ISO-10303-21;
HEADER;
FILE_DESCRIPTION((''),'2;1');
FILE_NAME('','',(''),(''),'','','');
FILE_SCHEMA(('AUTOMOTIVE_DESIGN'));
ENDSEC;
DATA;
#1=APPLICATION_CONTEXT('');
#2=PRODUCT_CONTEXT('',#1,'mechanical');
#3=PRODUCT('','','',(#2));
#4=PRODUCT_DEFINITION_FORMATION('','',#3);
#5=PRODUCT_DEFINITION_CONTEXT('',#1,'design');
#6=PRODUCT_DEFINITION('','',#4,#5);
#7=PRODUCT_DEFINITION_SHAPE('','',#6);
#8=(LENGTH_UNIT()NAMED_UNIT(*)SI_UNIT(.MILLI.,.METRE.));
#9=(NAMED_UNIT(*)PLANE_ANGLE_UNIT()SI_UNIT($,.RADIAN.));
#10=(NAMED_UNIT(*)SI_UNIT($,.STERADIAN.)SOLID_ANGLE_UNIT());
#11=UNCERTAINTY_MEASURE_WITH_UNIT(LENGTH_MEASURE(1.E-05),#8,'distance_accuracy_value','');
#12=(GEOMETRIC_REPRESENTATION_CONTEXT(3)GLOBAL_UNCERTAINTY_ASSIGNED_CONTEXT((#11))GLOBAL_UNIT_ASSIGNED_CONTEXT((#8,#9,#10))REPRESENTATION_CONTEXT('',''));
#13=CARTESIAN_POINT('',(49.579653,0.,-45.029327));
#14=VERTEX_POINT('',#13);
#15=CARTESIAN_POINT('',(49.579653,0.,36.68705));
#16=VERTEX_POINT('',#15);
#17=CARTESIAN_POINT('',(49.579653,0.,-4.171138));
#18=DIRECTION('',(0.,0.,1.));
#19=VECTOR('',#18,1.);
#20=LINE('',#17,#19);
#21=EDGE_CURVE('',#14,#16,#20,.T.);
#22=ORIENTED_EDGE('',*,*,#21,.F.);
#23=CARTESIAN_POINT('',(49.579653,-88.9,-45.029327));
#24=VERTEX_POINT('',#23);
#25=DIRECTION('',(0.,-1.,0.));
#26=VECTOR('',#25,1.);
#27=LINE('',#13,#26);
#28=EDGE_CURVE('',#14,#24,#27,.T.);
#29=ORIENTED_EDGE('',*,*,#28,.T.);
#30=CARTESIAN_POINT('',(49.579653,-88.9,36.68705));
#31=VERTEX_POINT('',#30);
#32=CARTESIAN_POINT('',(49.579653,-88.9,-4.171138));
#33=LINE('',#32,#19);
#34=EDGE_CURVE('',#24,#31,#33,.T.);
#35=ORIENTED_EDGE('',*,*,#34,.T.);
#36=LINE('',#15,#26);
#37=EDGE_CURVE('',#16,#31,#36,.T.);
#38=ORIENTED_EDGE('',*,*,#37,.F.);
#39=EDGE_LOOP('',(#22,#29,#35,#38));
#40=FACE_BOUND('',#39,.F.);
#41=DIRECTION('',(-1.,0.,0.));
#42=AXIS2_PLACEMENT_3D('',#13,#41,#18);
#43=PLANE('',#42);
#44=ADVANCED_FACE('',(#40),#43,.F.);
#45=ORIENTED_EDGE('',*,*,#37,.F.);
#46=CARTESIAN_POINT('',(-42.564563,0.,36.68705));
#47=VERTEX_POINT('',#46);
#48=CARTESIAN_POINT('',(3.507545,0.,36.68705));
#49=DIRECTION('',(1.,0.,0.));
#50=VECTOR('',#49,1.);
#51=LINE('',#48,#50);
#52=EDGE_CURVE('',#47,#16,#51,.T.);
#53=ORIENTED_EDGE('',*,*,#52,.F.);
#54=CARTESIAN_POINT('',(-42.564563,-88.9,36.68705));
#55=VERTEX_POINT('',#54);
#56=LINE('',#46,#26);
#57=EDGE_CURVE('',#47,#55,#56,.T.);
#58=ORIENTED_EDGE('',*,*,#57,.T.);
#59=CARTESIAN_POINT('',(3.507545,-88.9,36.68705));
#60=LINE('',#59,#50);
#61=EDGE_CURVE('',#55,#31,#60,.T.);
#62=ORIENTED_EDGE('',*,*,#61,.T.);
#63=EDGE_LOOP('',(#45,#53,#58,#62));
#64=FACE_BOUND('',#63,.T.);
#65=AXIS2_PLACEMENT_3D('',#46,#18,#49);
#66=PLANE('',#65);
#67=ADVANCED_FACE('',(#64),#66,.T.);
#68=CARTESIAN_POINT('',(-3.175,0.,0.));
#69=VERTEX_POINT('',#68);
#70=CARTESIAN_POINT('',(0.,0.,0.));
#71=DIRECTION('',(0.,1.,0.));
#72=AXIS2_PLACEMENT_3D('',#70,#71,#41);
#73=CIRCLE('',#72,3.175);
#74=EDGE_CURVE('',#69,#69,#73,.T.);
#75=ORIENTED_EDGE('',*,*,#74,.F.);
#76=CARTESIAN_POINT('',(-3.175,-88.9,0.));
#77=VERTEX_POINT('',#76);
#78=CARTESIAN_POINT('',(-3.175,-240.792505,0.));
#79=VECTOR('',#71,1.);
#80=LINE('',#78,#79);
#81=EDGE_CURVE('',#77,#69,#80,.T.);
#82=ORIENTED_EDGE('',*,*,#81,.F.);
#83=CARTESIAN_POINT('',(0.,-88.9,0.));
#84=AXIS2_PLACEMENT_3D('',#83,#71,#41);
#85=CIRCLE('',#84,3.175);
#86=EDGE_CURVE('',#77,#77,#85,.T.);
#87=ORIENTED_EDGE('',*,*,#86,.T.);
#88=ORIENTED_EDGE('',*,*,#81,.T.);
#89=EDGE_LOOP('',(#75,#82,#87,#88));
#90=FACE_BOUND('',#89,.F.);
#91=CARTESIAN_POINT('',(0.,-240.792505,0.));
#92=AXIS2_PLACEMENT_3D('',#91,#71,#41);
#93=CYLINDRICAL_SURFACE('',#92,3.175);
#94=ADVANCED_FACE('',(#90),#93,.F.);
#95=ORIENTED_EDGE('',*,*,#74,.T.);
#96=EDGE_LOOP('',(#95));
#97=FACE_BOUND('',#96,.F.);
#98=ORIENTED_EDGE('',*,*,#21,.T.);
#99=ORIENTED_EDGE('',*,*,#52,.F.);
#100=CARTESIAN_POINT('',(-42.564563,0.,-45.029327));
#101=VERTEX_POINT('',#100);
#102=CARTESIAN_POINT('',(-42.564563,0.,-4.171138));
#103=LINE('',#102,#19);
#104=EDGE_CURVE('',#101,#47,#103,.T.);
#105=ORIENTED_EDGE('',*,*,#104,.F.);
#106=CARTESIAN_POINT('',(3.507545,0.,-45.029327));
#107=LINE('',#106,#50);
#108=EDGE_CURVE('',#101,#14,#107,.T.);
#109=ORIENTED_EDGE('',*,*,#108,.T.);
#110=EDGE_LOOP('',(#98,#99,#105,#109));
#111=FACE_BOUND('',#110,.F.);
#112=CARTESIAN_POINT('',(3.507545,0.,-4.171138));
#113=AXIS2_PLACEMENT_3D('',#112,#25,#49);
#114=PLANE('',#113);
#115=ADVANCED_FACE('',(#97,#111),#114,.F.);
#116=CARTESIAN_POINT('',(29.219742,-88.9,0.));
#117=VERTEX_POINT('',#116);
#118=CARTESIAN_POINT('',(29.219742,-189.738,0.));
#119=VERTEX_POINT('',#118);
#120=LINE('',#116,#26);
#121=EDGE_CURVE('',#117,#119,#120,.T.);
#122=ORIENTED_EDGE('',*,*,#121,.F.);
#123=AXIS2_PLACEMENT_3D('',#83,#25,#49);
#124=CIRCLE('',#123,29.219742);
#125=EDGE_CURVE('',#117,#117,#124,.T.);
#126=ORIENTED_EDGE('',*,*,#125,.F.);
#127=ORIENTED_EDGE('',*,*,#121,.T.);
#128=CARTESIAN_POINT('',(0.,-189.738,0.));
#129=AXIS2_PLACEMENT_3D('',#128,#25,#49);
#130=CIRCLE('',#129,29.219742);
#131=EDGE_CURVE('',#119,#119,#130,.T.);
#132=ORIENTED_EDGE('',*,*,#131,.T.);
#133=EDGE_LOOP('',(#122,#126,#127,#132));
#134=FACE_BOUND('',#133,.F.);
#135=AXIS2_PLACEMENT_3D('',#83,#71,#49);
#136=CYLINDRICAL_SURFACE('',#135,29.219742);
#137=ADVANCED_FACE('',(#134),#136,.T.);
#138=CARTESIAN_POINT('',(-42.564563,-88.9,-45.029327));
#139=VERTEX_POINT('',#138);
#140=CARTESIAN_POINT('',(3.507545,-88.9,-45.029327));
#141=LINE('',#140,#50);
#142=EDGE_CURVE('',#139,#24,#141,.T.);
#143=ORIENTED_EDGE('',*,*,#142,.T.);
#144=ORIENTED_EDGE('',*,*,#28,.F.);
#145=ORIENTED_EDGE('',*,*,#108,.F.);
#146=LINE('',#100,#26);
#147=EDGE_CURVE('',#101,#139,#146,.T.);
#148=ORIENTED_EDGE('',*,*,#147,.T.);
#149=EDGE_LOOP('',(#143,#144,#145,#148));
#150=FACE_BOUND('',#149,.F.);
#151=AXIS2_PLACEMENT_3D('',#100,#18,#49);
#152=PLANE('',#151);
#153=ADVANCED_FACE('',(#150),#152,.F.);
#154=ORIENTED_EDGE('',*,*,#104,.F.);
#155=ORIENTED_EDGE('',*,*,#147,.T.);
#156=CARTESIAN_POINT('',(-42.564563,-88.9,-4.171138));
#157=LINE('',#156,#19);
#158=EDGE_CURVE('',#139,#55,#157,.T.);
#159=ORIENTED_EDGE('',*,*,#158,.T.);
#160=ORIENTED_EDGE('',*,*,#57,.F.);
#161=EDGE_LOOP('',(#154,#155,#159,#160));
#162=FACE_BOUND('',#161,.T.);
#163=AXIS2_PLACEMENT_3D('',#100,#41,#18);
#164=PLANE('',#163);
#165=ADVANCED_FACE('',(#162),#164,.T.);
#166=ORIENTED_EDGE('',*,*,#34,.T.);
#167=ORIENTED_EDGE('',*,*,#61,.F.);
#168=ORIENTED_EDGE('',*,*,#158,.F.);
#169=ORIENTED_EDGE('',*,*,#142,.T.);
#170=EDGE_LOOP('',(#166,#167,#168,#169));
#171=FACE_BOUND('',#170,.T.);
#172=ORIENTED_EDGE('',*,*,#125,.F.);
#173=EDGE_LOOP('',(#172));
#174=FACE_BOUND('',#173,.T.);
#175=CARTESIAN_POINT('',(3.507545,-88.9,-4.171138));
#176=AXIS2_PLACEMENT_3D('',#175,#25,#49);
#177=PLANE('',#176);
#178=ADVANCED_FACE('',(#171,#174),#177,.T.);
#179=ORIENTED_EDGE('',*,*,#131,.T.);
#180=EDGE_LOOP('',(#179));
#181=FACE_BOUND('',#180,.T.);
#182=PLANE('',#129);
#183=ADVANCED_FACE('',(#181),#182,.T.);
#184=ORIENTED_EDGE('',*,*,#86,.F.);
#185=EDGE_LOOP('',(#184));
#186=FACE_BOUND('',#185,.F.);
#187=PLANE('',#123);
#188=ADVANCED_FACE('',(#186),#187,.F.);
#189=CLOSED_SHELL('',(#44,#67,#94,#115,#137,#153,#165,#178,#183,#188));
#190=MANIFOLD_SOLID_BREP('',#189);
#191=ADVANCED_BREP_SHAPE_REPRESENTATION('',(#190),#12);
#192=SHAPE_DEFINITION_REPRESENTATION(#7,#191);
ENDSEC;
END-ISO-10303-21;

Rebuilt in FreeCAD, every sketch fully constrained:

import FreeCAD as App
import Part
import Sketcher
Q = App.Units.Quantity


def add_polygon(sketch, points):
    """Adds a closed chain of lines whose ends are joined by coincident constraints."""
    first, n = sketch.GeometryCount, len(points)
    for a, b in zip(points, points[1:] + points[:1]):
        sketch.addGeometry(Part.LineSegment(App.Vector(*a, 0), App.Vector(*b, 0)), False)
    for i in range(n):
        sketch.addConstraint(Sketcher.Constraint("Coincident", first + i, 2, first + (i + 1) % n, 1))

doc = App.newDocument("Part")
body = doc.addObject("PartDesign::Body", "Body")

sketch1 = body.newObject("Sketcher::SketchObject", "Sketch")
sketch1.AttachmentSupport = (doc.getObject("XZ_Plane"), [""])
sketch1.MapMode = "FlatFace"
add_polygon(sketch1, [(-43, 37), (-43, -45), (50, -45), (50, 37)])
sketch1.addConstraint([
    Sketcher.Constraint("Vertical", 0),
    Sketcher.Constraint("Horizontal", 1),
    Sketcher.Constraint("Vertical", 2),
    Sketcher.Constraint("Horizontal", 3),
    Sketcher.Constraint("DistanceX", 1, 1, 1, 2, 92.144217),
    Sketcher.Constraint("DistanceY", 0, 2, 0, 1, 81.716377),
    Sketcher.Constraint("DistanceY", -1, 1, 2, 2, 36.68705),
    Sketcher.Constraint("DistanceX", 0, 2, -1, 1, 42.564563),
])
pad1 = body.newObject("PartDesign::Pad", "Pad")
pad1.Profile = sketch1
pad1.Length = Q("3.5 in")

sketch2 = body.newObject("Sketcher::SketchObject", "Sketch001")
sketch2.AttachmentSupport = (doc.getObject("XZ_Plane"), [""])
sketch2.MapMode = "FlatFace"
sketch2.AttachmentOffset = App.Placement(App.Vector(0, 0, 3.5 * 25.4), App.Rotation())
sketch2.addGeometry(Part.Circle(App.Vector(0, 0, 0), App.Vector(0, 0, 1), 3.2), False)
sketch2.addConstraint([
    Sketcher.Constraint("Coincident", 0, 3, -1, 1),
    Sketcher.Constraint("Diameter", 0, Q("0.25 in")),
])
doc.recompute()
hole = body.newObject("PartDesign::Hole", "Hole")
hole.Profile = sketch2
hole.ThreadType = "None"
hole.Diameter = Q("0.25 in")
hole.DepthType = "ThroughAll"

sketch3 = body.newObject("Sketcher::SketchObject", "Sketch002")
sketch3.AttachmentSupport = (doc.getObject("XZ_Plane"), [""])
sketch3.MapMode = "FlatFace"
sketch3.AttachmentOffset = App.Placement(App.Vector(0, 0, 3.5 * 25.4), App.Rotation())
sketch3.addGeometry(Part.Circle(App.Vector(0, 0, 0), App.Vector(0, 0, 1), 29), False)
sketch3.addConstraint([
    Sketcher.Constraint("Coincident", 0, 3, -1, 1),
    Sketcher.Constraint("Diameter", 0, 58.439484),
])
pad2 = body.newObject("PartDesign::Pad", "Pad001")
pad2.Profile = sketch3
pad2.Length = Q("3.97 in")

doc.recompute()
